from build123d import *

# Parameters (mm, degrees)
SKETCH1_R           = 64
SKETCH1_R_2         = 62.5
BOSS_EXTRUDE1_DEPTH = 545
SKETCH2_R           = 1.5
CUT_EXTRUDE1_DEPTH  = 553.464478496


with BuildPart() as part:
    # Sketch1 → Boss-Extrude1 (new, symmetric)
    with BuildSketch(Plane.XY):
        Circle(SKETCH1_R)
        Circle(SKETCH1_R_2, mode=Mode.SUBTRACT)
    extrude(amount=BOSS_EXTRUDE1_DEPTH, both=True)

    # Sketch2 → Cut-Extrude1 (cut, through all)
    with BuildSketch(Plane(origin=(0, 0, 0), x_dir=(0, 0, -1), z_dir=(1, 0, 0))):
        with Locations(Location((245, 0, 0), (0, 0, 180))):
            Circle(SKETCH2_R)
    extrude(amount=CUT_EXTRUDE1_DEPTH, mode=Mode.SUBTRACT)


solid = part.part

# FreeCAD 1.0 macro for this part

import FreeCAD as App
import Part
import Sketcher

V = App.Vector

doc = App.newDocument("Part")
params = doc.addObject("Spreadsheet::Sheet", "Params")
for row, (alias, value) in enumerate([
    ("sketch1_diameter", "128 mm"),
    ("sketch1_diameter2", "125 mm"),
    ("pad1_length", "1090 mm"),
    ("sketch2_diameter", "3 mm"),
], start=1):
    params.set(f"A{row}", alias)
    params.set(f"B{row}", "=" + value)
    params.setAlias(f"B{row}", alias)

body = doc.addObject("PartDesign::Body", "Body")

# Sketch on XY plane
sketch1 = doc.addObject("Sketcher::SketchObject", "Sketch")
body.addObject(sketch1)
sketch1.AttachmentSupport = (doc.XY_Plane, [""])
sketch1.MapMode = "FlatFace"
sketch1.addGeometry([
    Part.Circle(V(0, 0, 0), V(0, 0, 1), 64),
    Part.Circle(V(0, 0, 0), V(0, 0, 1), 62),
], False)
sketch1.addConstraint([
    Sketcher.Constraint("Coincident", 0, 3, -1, 1),
    Sketcher.Constraint("Coincident", 1, 3, -1, 1),
    Sketcher.Constraint("Diameter", 0, 128.0),
    Sketcher.Constraint("Diameter", 1, 125.0),
])
sketch1.setExpression("Constraints[2]", "Params.sketch1_diameter")
sketch1.setExpression("Constraints[3]", "Params.sketch1_diameter2")
pad1 = doc.addObject("PartDesign::Pad", "Pad")
body.addObject(pad1)
pad1.Profile = sketch1
pad1.setExpression("Length", "Params.pad1_length")
pad1.Midplane = True

# Sketch on YZ plane
sketch2 = doc.addObject("Sketcher::SketchObject", "Sketch001")
body.addObject(sketch2)
sketch2.AttachmentSupport = (doc.YZ_Plane, [""])
sketch2.MapMode = "FlatFace"
sketch2.addGeometry(Part.Circle(V(0, -245, 0), V(0, 0, 1), 1.5), False)
sketch2.addConstraint([
    Sketcher.Constraint("PointOnObject", 0, 3, -2),
    Sketcher.Constraint("Diameter", 0, 3.0),
    Sketcher.Constraint("DistanceY", 0, 3, -1, 1, 245.0),
])
sketch2.setExpression("Constraints[1]", "Params.sketch2_diameter")
pocket1 = doc.addObject("PartDesign::Pocket", "Pocket")
body.addObject(pocket1)
pocket1.Profile = sketch2
pocket1.Type = "ThroughAll"
pocket1.Reversed = True

doc.recompute()
